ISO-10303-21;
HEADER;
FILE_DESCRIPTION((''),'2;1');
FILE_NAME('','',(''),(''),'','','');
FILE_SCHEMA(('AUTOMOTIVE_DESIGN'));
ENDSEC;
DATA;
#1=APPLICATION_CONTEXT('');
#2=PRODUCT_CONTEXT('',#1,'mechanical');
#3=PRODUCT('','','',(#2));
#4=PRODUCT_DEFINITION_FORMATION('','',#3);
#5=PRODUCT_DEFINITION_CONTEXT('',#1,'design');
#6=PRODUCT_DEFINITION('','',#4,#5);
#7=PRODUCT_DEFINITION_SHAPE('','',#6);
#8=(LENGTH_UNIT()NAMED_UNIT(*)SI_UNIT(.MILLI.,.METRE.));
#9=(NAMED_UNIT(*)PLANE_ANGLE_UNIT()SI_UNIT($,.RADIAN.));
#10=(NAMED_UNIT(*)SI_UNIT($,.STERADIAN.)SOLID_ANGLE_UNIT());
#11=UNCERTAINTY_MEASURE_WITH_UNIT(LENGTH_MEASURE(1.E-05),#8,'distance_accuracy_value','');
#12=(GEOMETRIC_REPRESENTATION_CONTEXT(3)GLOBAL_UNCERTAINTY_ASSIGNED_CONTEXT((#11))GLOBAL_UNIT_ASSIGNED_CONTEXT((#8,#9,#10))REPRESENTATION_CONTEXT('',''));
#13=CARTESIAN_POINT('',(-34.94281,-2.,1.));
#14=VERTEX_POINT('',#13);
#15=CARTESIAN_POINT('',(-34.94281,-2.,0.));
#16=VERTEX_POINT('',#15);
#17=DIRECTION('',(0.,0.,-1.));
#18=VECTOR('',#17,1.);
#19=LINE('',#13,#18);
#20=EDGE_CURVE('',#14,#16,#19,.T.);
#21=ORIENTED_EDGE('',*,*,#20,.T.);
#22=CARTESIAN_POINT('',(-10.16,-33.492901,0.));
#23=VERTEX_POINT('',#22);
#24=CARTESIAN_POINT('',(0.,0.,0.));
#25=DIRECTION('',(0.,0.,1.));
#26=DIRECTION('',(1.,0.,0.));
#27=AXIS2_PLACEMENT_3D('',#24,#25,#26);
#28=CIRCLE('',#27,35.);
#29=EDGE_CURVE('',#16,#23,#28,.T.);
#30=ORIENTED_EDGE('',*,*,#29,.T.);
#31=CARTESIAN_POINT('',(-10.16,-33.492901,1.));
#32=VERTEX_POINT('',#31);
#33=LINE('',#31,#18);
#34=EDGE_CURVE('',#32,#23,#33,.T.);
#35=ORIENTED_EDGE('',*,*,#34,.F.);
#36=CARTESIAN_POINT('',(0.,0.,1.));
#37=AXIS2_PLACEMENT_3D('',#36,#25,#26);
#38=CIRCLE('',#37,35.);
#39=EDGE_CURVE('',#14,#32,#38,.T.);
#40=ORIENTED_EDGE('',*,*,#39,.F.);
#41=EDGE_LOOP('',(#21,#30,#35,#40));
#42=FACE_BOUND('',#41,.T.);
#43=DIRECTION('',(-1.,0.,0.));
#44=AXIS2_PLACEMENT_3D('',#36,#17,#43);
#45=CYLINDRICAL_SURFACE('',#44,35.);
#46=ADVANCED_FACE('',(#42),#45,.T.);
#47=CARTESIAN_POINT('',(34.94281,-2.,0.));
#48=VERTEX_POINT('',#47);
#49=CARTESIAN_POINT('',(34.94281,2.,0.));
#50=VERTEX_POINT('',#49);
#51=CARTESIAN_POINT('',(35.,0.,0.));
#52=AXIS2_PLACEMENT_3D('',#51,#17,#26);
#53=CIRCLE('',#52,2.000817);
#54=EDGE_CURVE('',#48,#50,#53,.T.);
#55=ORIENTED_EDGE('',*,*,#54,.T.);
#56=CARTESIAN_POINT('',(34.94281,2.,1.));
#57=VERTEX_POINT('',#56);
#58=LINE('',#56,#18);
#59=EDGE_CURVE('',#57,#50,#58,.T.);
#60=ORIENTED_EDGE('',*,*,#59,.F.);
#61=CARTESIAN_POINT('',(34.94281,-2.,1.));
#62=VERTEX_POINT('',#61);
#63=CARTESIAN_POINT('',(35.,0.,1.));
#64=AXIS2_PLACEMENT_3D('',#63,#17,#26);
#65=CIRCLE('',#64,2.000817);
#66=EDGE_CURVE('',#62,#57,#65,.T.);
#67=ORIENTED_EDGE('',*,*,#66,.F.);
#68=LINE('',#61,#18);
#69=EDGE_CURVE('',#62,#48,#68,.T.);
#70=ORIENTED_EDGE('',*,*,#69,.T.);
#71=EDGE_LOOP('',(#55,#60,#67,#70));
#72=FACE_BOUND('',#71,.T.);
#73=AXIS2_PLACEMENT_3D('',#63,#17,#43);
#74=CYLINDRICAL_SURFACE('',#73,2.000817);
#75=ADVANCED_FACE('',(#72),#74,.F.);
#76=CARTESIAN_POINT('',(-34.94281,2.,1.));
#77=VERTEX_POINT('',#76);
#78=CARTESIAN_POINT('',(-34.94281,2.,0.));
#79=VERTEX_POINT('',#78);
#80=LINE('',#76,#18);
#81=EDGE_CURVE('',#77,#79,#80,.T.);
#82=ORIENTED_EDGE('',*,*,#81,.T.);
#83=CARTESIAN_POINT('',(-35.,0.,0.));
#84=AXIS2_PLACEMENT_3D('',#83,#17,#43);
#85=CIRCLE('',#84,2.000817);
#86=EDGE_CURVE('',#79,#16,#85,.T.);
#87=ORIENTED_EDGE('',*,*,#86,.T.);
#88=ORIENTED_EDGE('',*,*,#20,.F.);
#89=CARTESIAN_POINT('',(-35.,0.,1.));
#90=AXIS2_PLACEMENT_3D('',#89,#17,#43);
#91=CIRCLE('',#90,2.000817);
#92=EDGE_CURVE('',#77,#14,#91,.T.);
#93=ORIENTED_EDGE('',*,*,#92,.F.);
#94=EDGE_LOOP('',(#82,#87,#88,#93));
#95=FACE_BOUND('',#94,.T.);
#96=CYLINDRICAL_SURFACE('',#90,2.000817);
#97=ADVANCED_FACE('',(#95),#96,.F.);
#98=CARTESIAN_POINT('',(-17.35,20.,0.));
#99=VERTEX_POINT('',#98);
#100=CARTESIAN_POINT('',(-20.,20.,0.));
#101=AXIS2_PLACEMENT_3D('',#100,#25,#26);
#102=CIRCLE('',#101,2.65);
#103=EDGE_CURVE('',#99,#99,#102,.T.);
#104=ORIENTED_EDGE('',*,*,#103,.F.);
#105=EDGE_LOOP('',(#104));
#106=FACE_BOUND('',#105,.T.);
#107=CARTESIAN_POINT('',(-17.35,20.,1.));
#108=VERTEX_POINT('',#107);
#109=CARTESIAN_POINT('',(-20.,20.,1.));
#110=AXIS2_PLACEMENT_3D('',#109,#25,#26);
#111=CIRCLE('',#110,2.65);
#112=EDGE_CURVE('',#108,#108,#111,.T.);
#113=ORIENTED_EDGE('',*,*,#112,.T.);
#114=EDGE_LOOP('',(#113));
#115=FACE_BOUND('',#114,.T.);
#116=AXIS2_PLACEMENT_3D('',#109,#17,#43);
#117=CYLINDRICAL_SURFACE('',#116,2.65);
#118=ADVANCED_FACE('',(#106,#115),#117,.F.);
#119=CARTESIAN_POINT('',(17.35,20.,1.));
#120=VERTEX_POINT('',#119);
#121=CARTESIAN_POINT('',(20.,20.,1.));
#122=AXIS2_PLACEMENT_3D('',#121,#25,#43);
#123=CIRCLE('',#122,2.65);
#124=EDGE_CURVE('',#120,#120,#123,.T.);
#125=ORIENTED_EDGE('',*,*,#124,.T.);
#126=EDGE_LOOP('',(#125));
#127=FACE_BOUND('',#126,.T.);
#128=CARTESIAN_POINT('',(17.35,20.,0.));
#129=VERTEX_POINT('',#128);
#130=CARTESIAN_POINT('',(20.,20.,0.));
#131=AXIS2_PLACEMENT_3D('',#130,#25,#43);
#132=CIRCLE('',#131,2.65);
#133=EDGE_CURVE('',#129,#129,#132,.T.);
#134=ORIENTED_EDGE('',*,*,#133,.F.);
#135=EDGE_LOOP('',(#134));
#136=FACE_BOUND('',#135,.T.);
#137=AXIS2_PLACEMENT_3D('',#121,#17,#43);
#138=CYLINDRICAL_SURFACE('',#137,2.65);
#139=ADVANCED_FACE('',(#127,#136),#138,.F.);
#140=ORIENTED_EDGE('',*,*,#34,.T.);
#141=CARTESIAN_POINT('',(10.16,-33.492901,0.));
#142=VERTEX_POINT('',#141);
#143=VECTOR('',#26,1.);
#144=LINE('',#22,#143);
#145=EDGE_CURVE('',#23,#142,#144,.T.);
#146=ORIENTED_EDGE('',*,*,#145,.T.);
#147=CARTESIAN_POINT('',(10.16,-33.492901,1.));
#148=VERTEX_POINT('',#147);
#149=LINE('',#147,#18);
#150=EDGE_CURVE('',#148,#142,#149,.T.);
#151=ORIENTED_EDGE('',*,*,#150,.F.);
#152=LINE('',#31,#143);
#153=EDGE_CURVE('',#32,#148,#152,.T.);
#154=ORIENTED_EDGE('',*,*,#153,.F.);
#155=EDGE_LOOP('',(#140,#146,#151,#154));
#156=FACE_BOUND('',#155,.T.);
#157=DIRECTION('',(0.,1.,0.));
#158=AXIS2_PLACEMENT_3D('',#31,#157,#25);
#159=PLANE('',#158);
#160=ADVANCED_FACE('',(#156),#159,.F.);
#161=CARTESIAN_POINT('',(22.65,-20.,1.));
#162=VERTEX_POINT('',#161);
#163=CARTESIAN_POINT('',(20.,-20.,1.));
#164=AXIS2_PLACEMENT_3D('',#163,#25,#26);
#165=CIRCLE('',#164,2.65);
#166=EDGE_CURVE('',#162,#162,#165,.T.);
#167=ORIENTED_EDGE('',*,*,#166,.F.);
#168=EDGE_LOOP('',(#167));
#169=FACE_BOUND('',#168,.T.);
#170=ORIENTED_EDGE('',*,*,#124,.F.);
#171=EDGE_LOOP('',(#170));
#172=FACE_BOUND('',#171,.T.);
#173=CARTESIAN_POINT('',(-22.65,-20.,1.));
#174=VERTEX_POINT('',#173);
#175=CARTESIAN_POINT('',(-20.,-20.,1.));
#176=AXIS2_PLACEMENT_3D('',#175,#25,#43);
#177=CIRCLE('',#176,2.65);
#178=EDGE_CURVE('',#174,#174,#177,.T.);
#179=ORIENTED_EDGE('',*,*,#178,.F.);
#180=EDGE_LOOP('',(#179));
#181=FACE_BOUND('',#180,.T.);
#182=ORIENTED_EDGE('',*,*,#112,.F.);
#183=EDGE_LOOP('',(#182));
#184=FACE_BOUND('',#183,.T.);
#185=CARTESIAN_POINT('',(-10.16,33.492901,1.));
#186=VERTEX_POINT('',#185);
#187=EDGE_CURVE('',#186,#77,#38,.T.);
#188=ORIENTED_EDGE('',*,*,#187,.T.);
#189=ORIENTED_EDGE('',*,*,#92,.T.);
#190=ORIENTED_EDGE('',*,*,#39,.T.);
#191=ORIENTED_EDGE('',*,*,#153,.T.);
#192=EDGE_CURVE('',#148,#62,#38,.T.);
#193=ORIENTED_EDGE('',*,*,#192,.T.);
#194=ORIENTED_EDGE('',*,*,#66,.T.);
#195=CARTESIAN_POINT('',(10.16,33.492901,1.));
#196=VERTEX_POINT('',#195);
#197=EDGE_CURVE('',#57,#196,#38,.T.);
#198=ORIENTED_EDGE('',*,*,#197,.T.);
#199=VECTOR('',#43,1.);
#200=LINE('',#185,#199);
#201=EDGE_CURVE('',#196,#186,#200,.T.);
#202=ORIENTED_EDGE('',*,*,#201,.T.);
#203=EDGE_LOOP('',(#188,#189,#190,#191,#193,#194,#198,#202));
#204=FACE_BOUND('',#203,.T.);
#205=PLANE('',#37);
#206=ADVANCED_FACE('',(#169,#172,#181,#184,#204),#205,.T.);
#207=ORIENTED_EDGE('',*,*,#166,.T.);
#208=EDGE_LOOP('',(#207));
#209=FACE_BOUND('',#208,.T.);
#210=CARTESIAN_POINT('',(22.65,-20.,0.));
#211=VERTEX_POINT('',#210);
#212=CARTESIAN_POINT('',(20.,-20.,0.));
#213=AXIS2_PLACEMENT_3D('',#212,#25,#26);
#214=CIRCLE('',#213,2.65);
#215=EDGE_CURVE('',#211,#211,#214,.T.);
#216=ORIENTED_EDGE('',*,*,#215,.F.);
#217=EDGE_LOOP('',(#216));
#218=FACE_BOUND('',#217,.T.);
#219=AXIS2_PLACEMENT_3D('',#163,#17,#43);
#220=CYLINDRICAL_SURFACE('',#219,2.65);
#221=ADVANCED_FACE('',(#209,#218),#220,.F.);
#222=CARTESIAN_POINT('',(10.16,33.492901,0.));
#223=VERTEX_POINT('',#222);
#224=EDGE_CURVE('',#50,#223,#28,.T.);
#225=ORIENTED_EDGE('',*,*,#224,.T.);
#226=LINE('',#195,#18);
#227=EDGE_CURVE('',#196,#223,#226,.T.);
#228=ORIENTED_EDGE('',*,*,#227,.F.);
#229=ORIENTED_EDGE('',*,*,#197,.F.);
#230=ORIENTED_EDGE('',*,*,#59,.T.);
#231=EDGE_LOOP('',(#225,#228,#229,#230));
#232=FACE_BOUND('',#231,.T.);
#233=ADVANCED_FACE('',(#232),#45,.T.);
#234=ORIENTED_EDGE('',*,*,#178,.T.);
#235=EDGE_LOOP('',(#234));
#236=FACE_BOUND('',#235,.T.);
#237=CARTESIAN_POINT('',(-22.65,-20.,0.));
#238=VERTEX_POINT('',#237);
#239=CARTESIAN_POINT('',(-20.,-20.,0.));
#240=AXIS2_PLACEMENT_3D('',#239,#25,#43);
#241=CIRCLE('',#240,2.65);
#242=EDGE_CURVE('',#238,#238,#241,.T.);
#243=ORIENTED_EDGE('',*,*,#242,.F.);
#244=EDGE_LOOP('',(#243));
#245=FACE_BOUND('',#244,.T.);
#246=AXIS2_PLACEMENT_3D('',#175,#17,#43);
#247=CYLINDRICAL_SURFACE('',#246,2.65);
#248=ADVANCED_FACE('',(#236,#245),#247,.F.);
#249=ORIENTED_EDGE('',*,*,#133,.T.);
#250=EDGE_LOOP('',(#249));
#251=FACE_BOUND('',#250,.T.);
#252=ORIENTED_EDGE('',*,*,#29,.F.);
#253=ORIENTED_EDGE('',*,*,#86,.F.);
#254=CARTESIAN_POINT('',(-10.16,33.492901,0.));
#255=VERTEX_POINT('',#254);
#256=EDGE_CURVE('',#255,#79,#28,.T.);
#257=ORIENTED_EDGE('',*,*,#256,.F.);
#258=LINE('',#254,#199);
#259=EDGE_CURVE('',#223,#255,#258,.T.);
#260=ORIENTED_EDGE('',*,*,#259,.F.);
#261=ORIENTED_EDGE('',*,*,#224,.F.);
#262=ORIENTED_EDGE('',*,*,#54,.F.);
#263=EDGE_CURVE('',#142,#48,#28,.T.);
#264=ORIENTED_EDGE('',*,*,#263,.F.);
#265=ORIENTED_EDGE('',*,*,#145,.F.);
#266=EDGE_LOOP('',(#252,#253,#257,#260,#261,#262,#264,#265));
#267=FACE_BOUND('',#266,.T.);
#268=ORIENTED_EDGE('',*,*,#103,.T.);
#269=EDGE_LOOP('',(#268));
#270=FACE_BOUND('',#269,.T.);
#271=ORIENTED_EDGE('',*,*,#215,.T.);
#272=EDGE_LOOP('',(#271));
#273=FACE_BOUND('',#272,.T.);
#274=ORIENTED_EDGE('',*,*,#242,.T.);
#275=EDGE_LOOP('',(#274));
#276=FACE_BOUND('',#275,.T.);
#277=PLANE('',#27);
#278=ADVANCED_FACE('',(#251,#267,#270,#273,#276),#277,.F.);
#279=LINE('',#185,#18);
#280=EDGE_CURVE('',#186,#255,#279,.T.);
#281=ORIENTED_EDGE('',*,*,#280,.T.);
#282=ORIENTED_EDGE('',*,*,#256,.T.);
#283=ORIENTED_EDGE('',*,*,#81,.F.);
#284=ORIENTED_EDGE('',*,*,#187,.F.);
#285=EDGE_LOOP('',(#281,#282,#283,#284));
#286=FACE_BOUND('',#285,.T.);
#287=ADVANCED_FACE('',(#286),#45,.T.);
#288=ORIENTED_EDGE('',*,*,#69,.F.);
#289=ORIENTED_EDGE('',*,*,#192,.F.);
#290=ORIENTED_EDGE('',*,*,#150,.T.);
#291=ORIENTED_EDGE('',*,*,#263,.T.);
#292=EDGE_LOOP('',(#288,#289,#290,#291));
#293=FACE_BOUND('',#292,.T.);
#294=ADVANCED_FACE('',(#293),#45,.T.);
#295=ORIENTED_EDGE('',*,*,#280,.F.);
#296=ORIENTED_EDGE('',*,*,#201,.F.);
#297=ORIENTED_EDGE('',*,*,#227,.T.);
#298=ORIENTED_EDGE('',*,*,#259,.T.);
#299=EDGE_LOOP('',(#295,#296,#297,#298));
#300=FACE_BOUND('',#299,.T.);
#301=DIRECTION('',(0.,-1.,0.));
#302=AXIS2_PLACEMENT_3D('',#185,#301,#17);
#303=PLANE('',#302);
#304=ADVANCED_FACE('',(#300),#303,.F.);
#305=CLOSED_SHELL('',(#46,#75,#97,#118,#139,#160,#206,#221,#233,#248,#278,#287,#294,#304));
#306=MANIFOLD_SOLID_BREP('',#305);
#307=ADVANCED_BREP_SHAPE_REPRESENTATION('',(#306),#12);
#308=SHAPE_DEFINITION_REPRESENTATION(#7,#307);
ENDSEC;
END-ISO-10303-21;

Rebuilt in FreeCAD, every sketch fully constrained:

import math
import FreeCAD as App
import Part
import Sketcher
Q = App.Units.Quantity

doc = App.newDocument("Part")
body = doc.addObject("PartDesign::Body", "Body")

# Sketch on XY plane
sketch1 = body.newObject("Sketcher::SketchObject", "Sketch")
sketch1.AttachmentSupport = (doc.getObject("XY_Plane"), [""])
sketch1.MapMode = "FlatFace"
sketch1.addGeometry([
    Part.LineSegment(App.Vector(10.2, 33.5, 0), App.Vector(-10.2, 33.5, 0)),  # 0
    Part.ArcOfCircle(Part.Circle(App.Vector(0, 0, 0), App.Vector(0, 0, 1), 35), math.radians(107), math.radians(177)),  # 1
    Part.ArcOfCircle(Part.Circle(App.Vector(-35, 0, 0), App.Vector(0, 0, 1), 2), math.radians(-88), math.radians(88)),  # 2
    Part.ArcOfCircle(Part.Circle(App.Vector(0, 0, 0), App.Vector(0, 0, 1), 35), math.radians(-177), math.radians(-107)),  # 3
    Part.LineSegment(App.Vector(-10.2, -33.5, 0), App.Vector(10.2, -33.5, 0)),  # 4
    Part.ArcOfCircle(Part.Circle(App.Vector(0, 0, 0), App.Vector(0, 0, 1), 35), math.radians(-73), math.radians(-3)),  # 5
    Part.ArcOfCircle(Part.Circle(App.Vector(35, 0, 0), App.Vector(0, 0, 1), 2), math.radians(92), math.radians(268)),  # 6
    Part.ArcOfCircle(Part.Circle(App.Vector(0, 0, 0), App.Vector(0, 0, 1), 35), math.radians(3), math.radians(73)),  # 7
    Part.Circle(App.Vector(20, -20, 0), App.Vector(0, 0, 1), 2.6),  # 8
    Part.Circle(App.Vector(-20, -20, 0), App.Vector(0, 0, 1), 2.6),  # 9
    Part.Circle(App.Vector(20, 20, 0), App.Vector(0, 0, 1), 2.6),  # 10
    Part.Circle(App.Vector(-20, 20, 0), App.Vector(0, 0, 1), 2.6),  # 11
], False)
sketch1.addConstraint([
    Sketcher.Constraint("Coincident", 0, 2, 1, 1),
    Sketcher.Constraint("Coincident", 1, 2, 2, 2),
    Sketcher.Constraint("Coincident", 2, 1, 3, 1),
    Sketcher.Constraint("Coincident", 3, 2, 4, 1),
    Sketcher.Constraint("Coincident", 4, 2, 5, 1),
    Sketcher.Constraint("Coincident", 5, 2, 6, 2),
    Sketcher.Constraint("Coincident", 6, 1, 7, 1),
    Sketcher.Constraint("Coincident", 7, 2, 0, 1),
    Sketcher.Constraint("Horizontal", 0),
    Sketcher.Constraint("Horizontal", 4),
    Sketcher.Constraint("Coincident", 1, 3, -1, 1),
    Sketcher.Constraint("Coincident", 3, 3, -1, 1),
    Sketcher.Constraint("Coincident", 5, 3, -1, 1),
    Sketcher.Constraint("Coincident", 7, 3, -1, 1),
    Sketcher.Constraint("Equal", 1, 3),
    Sketcher.Constraint("Equal", 3, 5),
    Sketcher.Constraint("Equal", 2, 6),
    Sketcher.Constraint("Equal", 5, 7),
    Sketcher.Constraint("Equal", 8, 9),
    Sketcher.Constraint("Equal", 9, 10),
    Sketcher.Constraint("Equal", 10, 11),
    Sketcher.Constraint("Symmetric", 2, 3, 6, 3, -1, 1),
    Sketcher.Constraint("Symmetric", 9, 3, 10, 3, -1, 1),
    Sketcher.Constraint("Symmetric", 8, 3, 11, 3, -1, 1),
    Sketcher.Constraint("Symmetric", 8, 3, 9, 3, -2),
    Sketcher.Constraint("PointOnObject", 2, 3, -1),
    Sketcher.Constraint("Vertical", 0, 2, 3, 2),
    Sketcher.Constraint("Radius", 1, Q("35 mm")),
    Sketcher.Constraint("Diameter", 8, Q("5.3 mm")),
    Sketcher.Constraint("DistanceX", 2, 3, -1, 1, Q("35 mm")),
    Sketcher.Constraint("DistanceX", -1, 1, 8, 3, Q("20 mm")),
    Sketcher.Constraint("DistanceY", 8, 3, -1, 1, Q("20 mm")),
    Sketcher.Constraint("DistanceY", -1, 1, 1, 2, Q("2 mm")),
    Sketcher.Constraint("DistanceX", 0, 2, 0, 1, Q("20.32 mm")),
])
pad1 = body.newObject("PartDesign::Pad", "Pad")
pad1.Profile = sketch1
pad1.Length = 1

doc.recompute()
